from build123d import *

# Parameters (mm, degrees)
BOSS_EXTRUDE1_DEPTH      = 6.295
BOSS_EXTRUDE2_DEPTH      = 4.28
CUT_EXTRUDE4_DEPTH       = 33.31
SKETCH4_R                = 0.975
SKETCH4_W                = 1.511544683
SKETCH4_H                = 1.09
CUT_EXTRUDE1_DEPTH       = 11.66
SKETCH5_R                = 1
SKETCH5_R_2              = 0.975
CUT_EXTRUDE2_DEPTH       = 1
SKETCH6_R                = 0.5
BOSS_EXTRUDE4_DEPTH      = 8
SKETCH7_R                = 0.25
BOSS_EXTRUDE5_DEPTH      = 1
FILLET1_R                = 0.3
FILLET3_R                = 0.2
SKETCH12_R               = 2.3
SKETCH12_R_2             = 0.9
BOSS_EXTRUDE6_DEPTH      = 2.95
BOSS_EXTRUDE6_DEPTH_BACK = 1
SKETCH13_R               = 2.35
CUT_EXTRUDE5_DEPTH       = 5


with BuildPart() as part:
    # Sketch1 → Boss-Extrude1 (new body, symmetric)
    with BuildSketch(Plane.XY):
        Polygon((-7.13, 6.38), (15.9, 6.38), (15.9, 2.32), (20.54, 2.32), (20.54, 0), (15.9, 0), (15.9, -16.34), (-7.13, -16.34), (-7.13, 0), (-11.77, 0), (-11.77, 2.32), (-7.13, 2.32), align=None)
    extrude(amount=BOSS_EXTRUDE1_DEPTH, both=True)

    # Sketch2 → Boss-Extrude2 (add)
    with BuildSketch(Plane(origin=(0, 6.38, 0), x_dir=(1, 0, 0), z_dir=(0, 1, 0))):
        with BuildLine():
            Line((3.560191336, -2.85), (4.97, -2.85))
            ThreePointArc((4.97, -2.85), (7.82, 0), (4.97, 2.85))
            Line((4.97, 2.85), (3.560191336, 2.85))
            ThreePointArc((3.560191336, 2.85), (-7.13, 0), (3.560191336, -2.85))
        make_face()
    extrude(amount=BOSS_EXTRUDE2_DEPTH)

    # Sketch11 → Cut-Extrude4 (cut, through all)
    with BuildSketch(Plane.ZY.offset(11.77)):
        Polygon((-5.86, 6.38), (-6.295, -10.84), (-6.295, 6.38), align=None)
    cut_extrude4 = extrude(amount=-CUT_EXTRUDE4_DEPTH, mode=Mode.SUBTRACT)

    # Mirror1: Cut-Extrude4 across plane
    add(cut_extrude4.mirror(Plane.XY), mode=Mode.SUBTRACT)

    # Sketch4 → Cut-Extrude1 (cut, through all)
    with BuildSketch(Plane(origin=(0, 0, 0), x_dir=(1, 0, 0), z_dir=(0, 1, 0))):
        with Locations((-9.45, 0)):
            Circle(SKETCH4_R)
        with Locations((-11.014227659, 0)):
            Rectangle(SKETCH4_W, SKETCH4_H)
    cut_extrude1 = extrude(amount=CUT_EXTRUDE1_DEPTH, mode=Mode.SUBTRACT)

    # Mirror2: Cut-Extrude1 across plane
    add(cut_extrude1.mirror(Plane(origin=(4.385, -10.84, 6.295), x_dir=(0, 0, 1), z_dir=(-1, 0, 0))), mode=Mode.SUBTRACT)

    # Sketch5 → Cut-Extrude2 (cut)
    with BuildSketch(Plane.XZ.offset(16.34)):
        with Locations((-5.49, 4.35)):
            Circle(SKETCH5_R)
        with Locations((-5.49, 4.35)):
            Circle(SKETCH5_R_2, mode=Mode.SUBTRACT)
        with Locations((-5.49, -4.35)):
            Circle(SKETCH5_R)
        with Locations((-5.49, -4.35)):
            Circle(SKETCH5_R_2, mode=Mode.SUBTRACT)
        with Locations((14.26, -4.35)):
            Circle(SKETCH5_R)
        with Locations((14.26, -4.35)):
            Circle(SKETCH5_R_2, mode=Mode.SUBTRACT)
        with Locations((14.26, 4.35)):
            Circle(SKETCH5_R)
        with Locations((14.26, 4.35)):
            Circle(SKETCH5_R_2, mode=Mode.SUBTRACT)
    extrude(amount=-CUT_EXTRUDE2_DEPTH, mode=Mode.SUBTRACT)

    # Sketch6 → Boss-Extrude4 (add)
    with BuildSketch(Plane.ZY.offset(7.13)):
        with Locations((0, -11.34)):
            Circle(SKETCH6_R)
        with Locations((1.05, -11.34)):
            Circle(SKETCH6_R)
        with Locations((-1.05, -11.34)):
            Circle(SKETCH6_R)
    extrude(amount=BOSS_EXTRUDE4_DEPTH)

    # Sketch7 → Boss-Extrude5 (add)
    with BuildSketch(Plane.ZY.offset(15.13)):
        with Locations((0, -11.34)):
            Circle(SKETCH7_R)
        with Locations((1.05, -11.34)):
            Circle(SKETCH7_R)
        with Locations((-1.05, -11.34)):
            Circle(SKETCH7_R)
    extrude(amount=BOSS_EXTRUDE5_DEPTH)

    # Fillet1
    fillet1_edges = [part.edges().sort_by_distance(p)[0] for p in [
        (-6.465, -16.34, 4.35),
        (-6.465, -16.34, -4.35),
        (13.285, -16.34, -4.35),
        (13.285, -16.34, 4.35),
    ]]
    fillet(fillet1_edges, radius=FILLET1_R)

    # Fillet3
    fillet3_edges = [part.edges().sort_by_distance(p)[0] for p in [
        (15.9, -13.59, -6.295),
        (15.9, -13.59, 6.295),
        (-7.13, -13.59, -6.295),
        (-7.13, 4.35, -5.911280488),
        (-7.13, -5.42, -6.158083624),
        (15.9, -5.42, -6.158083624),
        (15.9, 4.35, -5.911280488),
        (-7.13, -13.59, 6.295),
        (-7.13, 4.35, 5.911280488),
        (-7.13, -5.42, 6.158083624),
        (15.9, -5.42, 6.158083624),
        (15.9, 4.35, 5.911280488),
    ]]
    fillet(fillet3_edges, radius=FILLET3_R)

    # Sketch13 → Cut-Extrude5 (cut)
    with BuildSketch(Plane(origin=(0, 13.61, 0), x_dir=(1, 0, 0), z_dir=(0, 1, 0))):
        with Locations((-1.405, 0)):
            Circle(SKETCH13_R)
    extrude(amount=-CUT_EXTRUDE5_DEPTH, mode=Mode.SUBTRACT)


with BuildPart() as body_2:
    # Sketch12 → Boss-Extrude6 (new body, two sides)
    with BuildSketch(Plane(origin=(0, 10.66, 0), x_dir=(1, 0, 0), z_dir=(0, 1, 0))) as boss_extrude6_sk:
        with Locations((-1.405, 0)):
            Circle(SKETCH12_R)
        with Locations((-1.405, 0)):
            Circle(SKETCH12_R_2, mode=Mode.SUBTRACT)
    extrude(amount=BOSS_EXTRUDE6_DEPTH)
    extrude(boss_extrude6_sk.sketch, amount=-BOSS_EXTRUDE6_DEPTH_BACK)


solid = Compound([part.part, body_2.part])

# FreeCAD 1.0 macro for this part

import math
import FreeCAD as App
import Part
import Sketcher

V = App.Vector
Q = App.Units.Quantity


def edges_at(feature, points):
    """Names of the edges that pass closest to the given points."""
    edges = feature.Shape.Edges
    near = lambda p: min(range(len(edges)), key=lambda i: edges[i].distToShape(Part.Vertex(*p))[0])
    return sorted({f"Edge{near(p) + 1}" for p in points})


def add_polygon(sketch, points):
    """Adds a closed chain of lines whose ends are joined by coincident constraints."""
    first, n = sketch.GeometryCount, len(points)
    for a, b in zip(points, points[1:] + points[:1]):
        sketch.addGeometry(Part.LineSegment(App.Vector(*a, 0), App.Vector(*b, 0)), False)
    for i in range(n):
        sketch.addConstraint(Sketcher.Constraint("Coincident", first + i, 2, first + (i + 1) % n, 1))

doc = App.newDocument("Part")
body = doc.addObject("PartDesign::Body", "Body")

sketch1 = body.newObject("Sketcher::SketchObject", "Sketch")
sketch1.AttachmentSupport = (doc.getObject("XY_Plane"), [""])
sketch1.MapMode = "FlatFace"
add_polygon(sketch1, [(15.9, 6.4), (-7.1, 6.4), (-7.1, 2.3), (-11.8, 2.3), (-11.8, 0), (-7.1, 0), (-7.1, -16.3), (15.9, -16.3), (15.9, 0), (20.5, 0), (20.5, 2.3), (15.9, 2.3)])
sketch1.addConstraint(Sketcher.Constraint("Horizontal", 0))
sketch1.addConstraint(Sketcher.Constraint("Vertical", 1))
sketch1.addConstraint(Sketcher.Constraint("Horizontal", 2))
sketch1.addConstraint(Sketcher.Constraint("Vertical", 3))
sketch1.addConstraint(Sketcher.Constraint("Horizontal", 4))
sketch1.addConstraint(Sketcher.Constraint("Vertical", 5))
sketch1.addConstraint(Sketcher.Constraint("Horizontal", 6))
sketch1.addConstraint(Sketcher.Constraint("Vertical", 7))
sketch1.addConstraint(Sketcher.Constraint("Horizontal", 8))
sketch1.addConstraint(Sketcher.Constraint("Vertical", 9))
sketch1.addConstraint(Sketcher.Constraint("Horizontal", 10))
sketch1.addConstraint(Sketcher.Constraint("Vertical", 11))
sketch1.addConstraint(Sketcher.Constraint("PointOnObject", 3, 2, -1))
sketch1.addConstraint(Sketcher.Constraint("PointOnObject", 7, 2, -1))
sketch1.addConstraint(Sketcher.Constraint("Horizontal", 2, 2, 9, 2))
sketch1.addConstraint(Sketcher.Constraint("Vertical", 1, 2, 4, 2))
sketch1.addConstraint(Sketcher.Constraint("Vertical", 7, 2, 10, 2))
sketch1.addConstraint(Sketcher.Constraint("Equal", 4, 8))
sketch1.addConstraint(Sketcher.Constraint("DistanceX", 0, 2, 0, 1, Q("23.03 mm")))
sketch1.addConstraint(Sketcher.Constraint("DistanceX", 2, 2, 2, 1, Q("4.64 mm")))
sketch1.addConstraint(Sketcher.Constraint("DistanceY", 1, 2, 1, 1, Q("4.06 mm")))
sketch1.addConstraint(Sketcher.Constraint("DistanceY", 3, 2, 3, 1, Q("2.32 mm")))
sketch1.addConstraint(Sketcher.Constraint("DistanceY", 5, 2, 5, 1, Q("16.34 mm")))
sketch1.addConstraint(Sketcher.Constraint("DistanceX", -1, 1, 6, 2, Q("15.9 mm")))
pad1 = body.newObject("PartDesign::Pad", "Pad")
pad1.Profile = sketch1
pad1.Length = 12.59
pad1.Midplane = True

sketch2 = body.newObject("Sketcher::SketchObject", "Sketch001")
sketch2.AttachmentSupport = (doc.getObject("XZ_Plane"), [""])
sketch2.MapMode = "FlatFace"
sketch2.AttachmentOffset = App.Placement(V(0, 0, -6.38), App.Rotation())
sketch2.addGeometry(Part.LineSegment(V(3.6, 2.9, 0), V(5, 2.9, 0)), False)
sketch2.addGeometry(Part.ArcOfCircle(Part.Circle(V(5, 0, 0), V(0, 0, 1), 2.9), math.radians(-90), math.radians(90)), False)
sketch2.addGeometry(Part.LineSegment(V(5, -2.9, 0), V(3.6, -2.9, 0)), False)
sketch2.addGeometry(Part.ArcOfCircle(Part.Circle(V(-1.4, 0, 0), V(0, 0, 1), 5.7), math.radians(30), math.radians(330)), False)
sketch2.addConstraint(Sketcher.Constraint("Tangent", 0, 2, 1, 2))
sketch2.addConstraint(Sketcher.Constraint("Tangent", 1, 1, 2, 1))
sketch2.addConstraint(Sketcher.Constraint("Coincident", 2, 2, 3, 2))
sketch2.addConstraint(Sketcher.Constraint("Coincident", 3, 1, 0, 1))
sketch2.addConstraint(Sketcher.Constraint("Horizontal", 0))
sketch2.addConstraint(Sketcher.Constraint("Horizontal", 2))
sketch2.addConstraint(Sketcher.Constraint("Symmetric", 2, 2, 3, 1, -1))
sketch2.addConstraint(Sketcher.Constraint("Radius", 1, Q("2.85 mm")))
sketch2.addConstraint(Sketcher.Constraint("Radius", 3, Q("5.725 mm")))
sketch2.addConstraint(Sketcher.Constraint("DistanceX", -1, 1, 1, 3, Q("4.97 mm")))
sketch2.addConstraint(Sketcher.Constraint("DistanceX", 3, 3, -1, 1, Q("1.405 mm")))
pad2 = body.newObject("PartDesign::Pad", "Pad001")
pad2.Profile = sketch2
pad2.Length = 4.28
pad2.Reversed = True

sketch3 = body.newObject("Sketcher::SketchObject", "Sketch002")
sketch3.AttachmentSupport = (doc.getObject("YZ_Plane"), [""])
sketch3.MapMode = "FlatFace"
sketch3.AttachmentOffset = App.Placement(V(0, 0, -11.77), App.Rotation())
add_polygon(sketch3, [(-10.84, -6.29), (6.38, -5.86), (6.38, -6.29)])
sketch3.addConstraint(Sketcher.Constraint("Vertical", 1))
sketch3.addConstraint(Sketcher.Constraint("Horizontal", 2))
sketch3.addConstraint(Sketcher.Constraint("DistanceX", 2, 2, 2, 1, Q("17.22 mm")))
sketch3.addConstraint(Sketcher.Constraint("DistanceY", 1, 2, 1, 1, Q("0.435 mm")))
sketch3.addConstraint(Sketcher.Constraint("DistanceX", -1, 1, 0, 2, Q("6.38 mm")))
sketch3.addConstraint(Sketcher.Constraint("DistanceY", 0, 2, -1, 1, Q("5.86 mm")))
pocket1 = body.newObject("PartDesign::Pocket", "Pocket")
pocket1.Profile = sketch3
pocket1.Type = "ThroughAll"
pocket1.Reversed = True
doc.recompute()

mirrored = body.newObject("PartDesign::Mirrored", "Mirrored")
mirrored.Originals = [pocket1]
mirrored.MirrorPlane = (doc.getObject("XY_Plane"), [""])
body.Tip = mirrored

sketch4 = body.newObject("Sketcher::SketchObject", "Sketch003")
sketch4.AttachmentSupport = (doc.getObject("XZ_Plane"), [""])
sketch4.MapMode = "FlatFace"
sketch4.addGeometry(Part.ArcOfCircle(Part.Circle(V(-9.4, 0, 0), V(0, 0, 1), 1), math.radians(-146), math.radians(146)), False)
sketch4.addGeometry(Part.LineSegment(V(-10.3, -0.5, 0), V(-11.8, -0.5, 0)), False)
sketch4.addGeometry(Part.LineSegment(V(-11.8, -0.5, 0), V(-11.8, 0.5, 0)), False)
sketch4.addGeometry(Part.LineSegment(V(-11.8, 0.5, 0), V(-10.3, 0.5, 0)), False)
sketch4.addConstraint(Sketcher.Constraint("Coincident", 0, 1, 1, 1))
sketch4.addConstraint(Sketcher.Constraint("Coincident", 1, 2, 2, 1))
sketch4.addConstraint(Sketcher.Constraint("Coincident", 2, 2, 3, 1))
sketch4.addConstraint(Sketcher.Constraint("Coincident", 3, 2, 0, 2))
sketch4.addConstraint(Sketcher.Constraint("Horizontal", 1))
sketch4.addConstraint(Sketcher.Constraint("Vertical", 2))
sketch4.addConstraint(Sketcher.Constraint("Horizontal", 3))
sketch4.addConstraint(Sketcher.Constraint("Symmetric", 0, 1, 3, 2, -1))
sketch4.addConstraint(Sketcher.Constraint("Radius", 0, Q("0.975 mm")))
sketch4.addConstraint(Sketcher.Constraint("DistanceY", 2, 1, 2, 2, Q("1.09 mm")))
sketch4.addConstraint(Sketcher.Constraint("DistanceX", 0, 3, -1, 1, Q("9.45 mm")))
sketch4.addConstraint(Sketcher.Constraint("DistanceX", 1, 2, -1, 1, Q("11.77 mm")))
pocket2 = body.newObject("PartDesign::Pocket", "Pocket001")
pocket2.Profile = sketch4
pocket2.Type = "ThroughAll"
doc.recompute()

datumplane = body.newObject("PartDesign::Plane", "DatumPlane")
datumplane.AttachmentSupport = (doc.getObject("YZ_Plane"), [""])
datumplane.MapMode = "FlatFace"
datumplane.AttachmentOffset = App.Placement(V(0, 0, 4.385), App.Rotation())
mirrored2 = body.newObject("PartDesign::Mirrored", "Mirrored001")
mirrored2.Originals = [pocket2]
mirrored2.MirrorPlane = (datumplane, [""])
body.Tip = mirrored2

sketch5 = body.newObject("Sketcher::SketchObject", "Sketch004")
sketch5.AttachmentSupport = (doc.getObject("XZ_Plane"), [""])
sketch5.MapMode = "FlatFace"
sketch5.AttachmentOffset = App.Placement(V(0, 0, 16.34), App.Rotation())
sketch5.addGeometry(Part.Circle(V(-5.5, 4.3, 0), V(0, 0, 1), 1), False)
sketch5.addGeometry(Part.Circle(V(-5.5, 4.3, 0), V(0, 0, 1), 1), False)
sketch5.addGeometry(Part.Circle(V(-5.5, -4.3, 0), V(0, 0, 1), 1), False)
sketch5.addGeometry(Part.Circle(V(-5.5, -4.3, 0), V(0, 0, 1), 1), False)
sketch5.addGeometry(Part.Circle(V(14.3, -4.3, 0), V(0, 0, 1), 1), False)
sketch5.addGeometry(Part.Circle(V(14.3, -4.3, 0), V(0, 0, 1), 1), False)
sketch5.addGeometry(Part.Circle(V(14.3, 4.3, 0), V(0, 0, 1), 1), False)
sketch5.addGeometry(Part.Circle(V(14.3, 4.3, 0), V(0, 0, 1), 1), False)
sketch5.addConstraint(Sketcher.Constraint("Coincident", 1, 3, 0, 3))
sketch5.addConstraint(Sketcher.Constraint("Coincident", 3, 3, 2, 3))
sketch5.addConstraint(Sketcher.Constraint("Coincident", 5, 3, 4, 3))
sketch5.addConstraint(Sketcher.Constraint("Coincident", 7, 3, 6, 3))
sketch5.addConstraint(Sketcher.Constraint("Equal", 0, 2))
sketch5.addConstraint(Sketcher.Constraint("Equal", 1, 3))
sketch5.addConstraint(Sketcher.Constraint("Equal", 2, 4))
sketch5.addConstraint(Sketcher.Constraint("Equal", 3, 5))
sketch5.addConstraint(Sketcher.Constraint("Equal", 4, 6))
sketch5.addConstraint(Sketcher.Constraint("Equal", 5, 7))
sketch5.addConstraint(Sketcher.Constraint("Symmetric", 0, 3, 2, 3, -1))
sketch5.addConstraint(Sketcher.Constraint("Symmetric", 4, 3, 6, 3, -1))
sketch5.addConstraint(Sketcher.Constraint("Horizontal", 3, 3, 4, 3))
sketch5.addConstraint(Sketcher.Constraint("Diameter", 0, Q("2 mm")))
sketch5.addConstraint(Sketcher.Constraint("Diameter", 1, Q("1.95 mm")))
sketch5.addConstraint(Sketcher.Constraint("DistanceY", 2, 3, 0, 3, Q("8.7 mm")))
sketch5.addConstraint(Sketcher.Constraint("DistanceX", 0, 3, -1, 1, Q("5.49 mm")))
sketch5.addConstraint(Sketcher.Constraint("DistanceX", -1, 1, 4, 3, Q("14.26 mm")))
pocket3 = body.newObject("PartDesign::Pocket", "Pocket002")
pocket3.Profile = sketch5
pocket3.Length = 1

sketch6 = body.newObject("Sketcher::SketchObject", "Sketch005")
sketch6.AttachmentSupport = (doc.getObject("YZ_Plane"), [""])
sketch6.MapMode = "FlatFace"
sketch6.AttachmentOffset = App.Placement(V(0, 0, -7.13), App.Rotation())
sketch6.addGeometry(Part.Circle(V(-11.3, 0, 0), V(0, 0, 1), 0.5), False)
sketch6.addGeometry(Part.Circle(V(-11.3, 1.1, 0), V(0, 0, 1), 0.5), False)
sketch6.addGeometry(Part.Circle(V(-11.3, -1.1, 0), V(0, 0, 1), 0.5), False)
sketch6.addConstraint(Sketcher.Constraint("Equal", 0, 1))
sketch6.addConstraint(Sketcher.Constraint("Equal", 1, 2))
sketch6.addConstraint(Sketcher.Constraint("Symmetric", 1, 3, 2, 3, -1))
sketch6.addConstraint(Sketcher.Constraint("PointOnObject", 0, 3, -1))
sketch6.addConstraint(Sketcher.Constraint("Vertical", 0, 3, 1, 3))
sketch6.addConstraint(Sketcher.Constraint("Diameter", 0, Q("1 mm")))
sketch6.addConstraint(Sketcher.Constraint("DistanceY", 2, 3, 1, 3, Q("2.1 mm")))
sketch6.addConstraint(Sketcher.Constraint("DistanceX", 0, 3, -1, 1, Q("11.34 mm")))
pad3 = body.newObject("PartDesign::Pad", "Pad002")
pad3.Profile = sketch6
pad3.Length = 8
pad3.Reversed = True

sketch7 = body.newObject("Sketcher::SketchObject", "Sketch006")
sketch7.AttachmentSupport = (doc.getObject("YZ_Plane"), [""])
sketch7.MapMode = "FlatFace"
sketch7.AttachmentOffset = App.Placement(V(0, 0, -15.13), App.Rotation())
sketch7.addGeometry(Part.Circle(V(-11.34, 0, 0), V(0, 0, 1), 0.25), False)
sketch7.addGeometry(Part.Circle(V(-11.34, 1.05, 0), V(0, 0, 1), 0.25), False)
sketch7.addGeometry(Part.Circle(V(-11.34, -1.05, 0), V(0, 0, 1), 0.25), False)
sketch7.addConstraint(Sketcher.Constraint("Equal", 0, 1))
sketch7.addConstraint(Sketcher.Constraint("Equal", 1, 2))
sketch7.addConstraint(Sketcher.Constraint("Symmetric", 1, 3, 2, 3, -1))
sketch7.addConstraint(Sketcher.Constraint("PointOnObject", 0, 3, -1))
sketch7.addConstraint(Sketcher.Constraint("Vertical", 0, 3, 1, 3))
sketch7.addConstraint(Sketcher.Constraint("Diameter", 0, Q("0.5 mm")))
sketch7.addConstraint(Sketcher.Constraint("DistanceY", 2, 3, 1, 3, Q("2.1 mm")))
sketch7.addConstraint(Sketcher.Constraint("DistanceX", 0, 3, -1, 1, Q("11.34 mm")))
pad4 = body.newObject("PartDesign::Pad", "Pad003")
pad4.Profile = sketch7
pad4.Length = 1
pad4.Reversed = True
doc.recompute()

fillet = body.newObject("PartDesign::Fillet", "Fillet")
fillet.Base = (pad4, edges_at(pad4, [
    (-6.465, -16.34, 4.35),
    (-6.465, -16.34, -4.35),
    (13.285, -16.34, -4.35),
    (13.285, -16.34, 4.35),
]))
fillet.Radius = 0.3
doc.recompute()

fillet2 = body.newObject("PartDesign::Fillet", "Fillet001")
fillet2.Base = (fillet, edges_at(fillet, [
    (15.9, -13.59, -6.295),
    (15.9, -13.59, 6.295),
    (-7.13, -13.59, -6.295),
    (-7.13, 4.35, -5.911),
    (-7.13, -5.42, -6.158),
    (15.9, -5.42, -6.158),
    (15.9, 4.35, -5.911),
    (-7.13, -13.59, 6.295),
    (-7.13, 4.35, 5.911),
    (-7.13, -5.42, 6.158),
    (15.9, -5.42, 6.158),
    (15.9, 4.35, 5.911),
]))
fillet2.Radius = 0.2

sketch8 = body.newObject("Sketcher::SketchObject", "Sketch007")
sketch8.AttachmentSupport = (doc.getObject("XZ_Plane"), [""])
sketch8.MapMode = "FlatFace"
sketch8.AttachmentOffset = App.Placement(V(0, 0, -13.61), App.Rotation())
sketch8.addGeometry(Part.Circle(V(-1.4, 0, 0), V(0, 0, 1), 2.4), False)
sketch8.addConstraint(Sketcher.Constraint("PointOnObject", 0, 3, -1))
sketch8.addConstraint(Sketcher.Constraint("Diameter", 0, Q("4.7 mm")))
sketch8.addConstraint(Sketcher.Constraint("DistanceX", 0, 3, -1, 1, Q("1.405 mm")))
pocket4 = body.newObject("PartDesign::Pocket", "Pocket003")
pocket4.Profile = sketch8
pocket4.Length = 5
pocket4.Reversed = True
body2 = doc.addObject("PartDesign::Body", "Body001")

sketch9 = body2.newObject("Sketcher::SketchObject", "Sketch008")
sketch9.AttachmentSupport = (doc.getObject("XZ_Plane001"), [""])
sketch9.MapMode = "FlatFace"
sketch9.AttachmentOffset = App.Placement(V(0, 0, -10.66), App.Rotation())
sketch9.addGeometry(Part.Circle(V(-1.4, 0, 0), V(0, 0, 1), 2.3), False)
sketch9.addGeometry(Part.Circle(V(-1.4, 0, 0), V(0, 0, 1), 0.9), False)
sketch9.addConstraint(Sketcher.Constraint("Coincident", 1, 3, 0, 3))
sketch9.addConstraint(Sketcher.Constraint("PointOnObject", 0, 3, -1))
sketch9.addConstraint(Sketcher.Constraint("Diameter", 0, Q("4.6 mm")))
sketch9.addConstraint(Sketcher.Constraint("Diameter", 1, Q("1.8 mm")))
sketch9.addConstraint(Sketcher.Constraint("DistanceX", 0, 3, -1, 1, Q("1.405 mm")))
pad5 = body2.newObject("PartDesign::Pad", "Pad004")
pad5.Profile = sketch9
pad5.Type = "TwoLengths"
pad5.Length = 2.95
pad5.Length2 = 1
pad5.Reversed = True

doc.recompute()
